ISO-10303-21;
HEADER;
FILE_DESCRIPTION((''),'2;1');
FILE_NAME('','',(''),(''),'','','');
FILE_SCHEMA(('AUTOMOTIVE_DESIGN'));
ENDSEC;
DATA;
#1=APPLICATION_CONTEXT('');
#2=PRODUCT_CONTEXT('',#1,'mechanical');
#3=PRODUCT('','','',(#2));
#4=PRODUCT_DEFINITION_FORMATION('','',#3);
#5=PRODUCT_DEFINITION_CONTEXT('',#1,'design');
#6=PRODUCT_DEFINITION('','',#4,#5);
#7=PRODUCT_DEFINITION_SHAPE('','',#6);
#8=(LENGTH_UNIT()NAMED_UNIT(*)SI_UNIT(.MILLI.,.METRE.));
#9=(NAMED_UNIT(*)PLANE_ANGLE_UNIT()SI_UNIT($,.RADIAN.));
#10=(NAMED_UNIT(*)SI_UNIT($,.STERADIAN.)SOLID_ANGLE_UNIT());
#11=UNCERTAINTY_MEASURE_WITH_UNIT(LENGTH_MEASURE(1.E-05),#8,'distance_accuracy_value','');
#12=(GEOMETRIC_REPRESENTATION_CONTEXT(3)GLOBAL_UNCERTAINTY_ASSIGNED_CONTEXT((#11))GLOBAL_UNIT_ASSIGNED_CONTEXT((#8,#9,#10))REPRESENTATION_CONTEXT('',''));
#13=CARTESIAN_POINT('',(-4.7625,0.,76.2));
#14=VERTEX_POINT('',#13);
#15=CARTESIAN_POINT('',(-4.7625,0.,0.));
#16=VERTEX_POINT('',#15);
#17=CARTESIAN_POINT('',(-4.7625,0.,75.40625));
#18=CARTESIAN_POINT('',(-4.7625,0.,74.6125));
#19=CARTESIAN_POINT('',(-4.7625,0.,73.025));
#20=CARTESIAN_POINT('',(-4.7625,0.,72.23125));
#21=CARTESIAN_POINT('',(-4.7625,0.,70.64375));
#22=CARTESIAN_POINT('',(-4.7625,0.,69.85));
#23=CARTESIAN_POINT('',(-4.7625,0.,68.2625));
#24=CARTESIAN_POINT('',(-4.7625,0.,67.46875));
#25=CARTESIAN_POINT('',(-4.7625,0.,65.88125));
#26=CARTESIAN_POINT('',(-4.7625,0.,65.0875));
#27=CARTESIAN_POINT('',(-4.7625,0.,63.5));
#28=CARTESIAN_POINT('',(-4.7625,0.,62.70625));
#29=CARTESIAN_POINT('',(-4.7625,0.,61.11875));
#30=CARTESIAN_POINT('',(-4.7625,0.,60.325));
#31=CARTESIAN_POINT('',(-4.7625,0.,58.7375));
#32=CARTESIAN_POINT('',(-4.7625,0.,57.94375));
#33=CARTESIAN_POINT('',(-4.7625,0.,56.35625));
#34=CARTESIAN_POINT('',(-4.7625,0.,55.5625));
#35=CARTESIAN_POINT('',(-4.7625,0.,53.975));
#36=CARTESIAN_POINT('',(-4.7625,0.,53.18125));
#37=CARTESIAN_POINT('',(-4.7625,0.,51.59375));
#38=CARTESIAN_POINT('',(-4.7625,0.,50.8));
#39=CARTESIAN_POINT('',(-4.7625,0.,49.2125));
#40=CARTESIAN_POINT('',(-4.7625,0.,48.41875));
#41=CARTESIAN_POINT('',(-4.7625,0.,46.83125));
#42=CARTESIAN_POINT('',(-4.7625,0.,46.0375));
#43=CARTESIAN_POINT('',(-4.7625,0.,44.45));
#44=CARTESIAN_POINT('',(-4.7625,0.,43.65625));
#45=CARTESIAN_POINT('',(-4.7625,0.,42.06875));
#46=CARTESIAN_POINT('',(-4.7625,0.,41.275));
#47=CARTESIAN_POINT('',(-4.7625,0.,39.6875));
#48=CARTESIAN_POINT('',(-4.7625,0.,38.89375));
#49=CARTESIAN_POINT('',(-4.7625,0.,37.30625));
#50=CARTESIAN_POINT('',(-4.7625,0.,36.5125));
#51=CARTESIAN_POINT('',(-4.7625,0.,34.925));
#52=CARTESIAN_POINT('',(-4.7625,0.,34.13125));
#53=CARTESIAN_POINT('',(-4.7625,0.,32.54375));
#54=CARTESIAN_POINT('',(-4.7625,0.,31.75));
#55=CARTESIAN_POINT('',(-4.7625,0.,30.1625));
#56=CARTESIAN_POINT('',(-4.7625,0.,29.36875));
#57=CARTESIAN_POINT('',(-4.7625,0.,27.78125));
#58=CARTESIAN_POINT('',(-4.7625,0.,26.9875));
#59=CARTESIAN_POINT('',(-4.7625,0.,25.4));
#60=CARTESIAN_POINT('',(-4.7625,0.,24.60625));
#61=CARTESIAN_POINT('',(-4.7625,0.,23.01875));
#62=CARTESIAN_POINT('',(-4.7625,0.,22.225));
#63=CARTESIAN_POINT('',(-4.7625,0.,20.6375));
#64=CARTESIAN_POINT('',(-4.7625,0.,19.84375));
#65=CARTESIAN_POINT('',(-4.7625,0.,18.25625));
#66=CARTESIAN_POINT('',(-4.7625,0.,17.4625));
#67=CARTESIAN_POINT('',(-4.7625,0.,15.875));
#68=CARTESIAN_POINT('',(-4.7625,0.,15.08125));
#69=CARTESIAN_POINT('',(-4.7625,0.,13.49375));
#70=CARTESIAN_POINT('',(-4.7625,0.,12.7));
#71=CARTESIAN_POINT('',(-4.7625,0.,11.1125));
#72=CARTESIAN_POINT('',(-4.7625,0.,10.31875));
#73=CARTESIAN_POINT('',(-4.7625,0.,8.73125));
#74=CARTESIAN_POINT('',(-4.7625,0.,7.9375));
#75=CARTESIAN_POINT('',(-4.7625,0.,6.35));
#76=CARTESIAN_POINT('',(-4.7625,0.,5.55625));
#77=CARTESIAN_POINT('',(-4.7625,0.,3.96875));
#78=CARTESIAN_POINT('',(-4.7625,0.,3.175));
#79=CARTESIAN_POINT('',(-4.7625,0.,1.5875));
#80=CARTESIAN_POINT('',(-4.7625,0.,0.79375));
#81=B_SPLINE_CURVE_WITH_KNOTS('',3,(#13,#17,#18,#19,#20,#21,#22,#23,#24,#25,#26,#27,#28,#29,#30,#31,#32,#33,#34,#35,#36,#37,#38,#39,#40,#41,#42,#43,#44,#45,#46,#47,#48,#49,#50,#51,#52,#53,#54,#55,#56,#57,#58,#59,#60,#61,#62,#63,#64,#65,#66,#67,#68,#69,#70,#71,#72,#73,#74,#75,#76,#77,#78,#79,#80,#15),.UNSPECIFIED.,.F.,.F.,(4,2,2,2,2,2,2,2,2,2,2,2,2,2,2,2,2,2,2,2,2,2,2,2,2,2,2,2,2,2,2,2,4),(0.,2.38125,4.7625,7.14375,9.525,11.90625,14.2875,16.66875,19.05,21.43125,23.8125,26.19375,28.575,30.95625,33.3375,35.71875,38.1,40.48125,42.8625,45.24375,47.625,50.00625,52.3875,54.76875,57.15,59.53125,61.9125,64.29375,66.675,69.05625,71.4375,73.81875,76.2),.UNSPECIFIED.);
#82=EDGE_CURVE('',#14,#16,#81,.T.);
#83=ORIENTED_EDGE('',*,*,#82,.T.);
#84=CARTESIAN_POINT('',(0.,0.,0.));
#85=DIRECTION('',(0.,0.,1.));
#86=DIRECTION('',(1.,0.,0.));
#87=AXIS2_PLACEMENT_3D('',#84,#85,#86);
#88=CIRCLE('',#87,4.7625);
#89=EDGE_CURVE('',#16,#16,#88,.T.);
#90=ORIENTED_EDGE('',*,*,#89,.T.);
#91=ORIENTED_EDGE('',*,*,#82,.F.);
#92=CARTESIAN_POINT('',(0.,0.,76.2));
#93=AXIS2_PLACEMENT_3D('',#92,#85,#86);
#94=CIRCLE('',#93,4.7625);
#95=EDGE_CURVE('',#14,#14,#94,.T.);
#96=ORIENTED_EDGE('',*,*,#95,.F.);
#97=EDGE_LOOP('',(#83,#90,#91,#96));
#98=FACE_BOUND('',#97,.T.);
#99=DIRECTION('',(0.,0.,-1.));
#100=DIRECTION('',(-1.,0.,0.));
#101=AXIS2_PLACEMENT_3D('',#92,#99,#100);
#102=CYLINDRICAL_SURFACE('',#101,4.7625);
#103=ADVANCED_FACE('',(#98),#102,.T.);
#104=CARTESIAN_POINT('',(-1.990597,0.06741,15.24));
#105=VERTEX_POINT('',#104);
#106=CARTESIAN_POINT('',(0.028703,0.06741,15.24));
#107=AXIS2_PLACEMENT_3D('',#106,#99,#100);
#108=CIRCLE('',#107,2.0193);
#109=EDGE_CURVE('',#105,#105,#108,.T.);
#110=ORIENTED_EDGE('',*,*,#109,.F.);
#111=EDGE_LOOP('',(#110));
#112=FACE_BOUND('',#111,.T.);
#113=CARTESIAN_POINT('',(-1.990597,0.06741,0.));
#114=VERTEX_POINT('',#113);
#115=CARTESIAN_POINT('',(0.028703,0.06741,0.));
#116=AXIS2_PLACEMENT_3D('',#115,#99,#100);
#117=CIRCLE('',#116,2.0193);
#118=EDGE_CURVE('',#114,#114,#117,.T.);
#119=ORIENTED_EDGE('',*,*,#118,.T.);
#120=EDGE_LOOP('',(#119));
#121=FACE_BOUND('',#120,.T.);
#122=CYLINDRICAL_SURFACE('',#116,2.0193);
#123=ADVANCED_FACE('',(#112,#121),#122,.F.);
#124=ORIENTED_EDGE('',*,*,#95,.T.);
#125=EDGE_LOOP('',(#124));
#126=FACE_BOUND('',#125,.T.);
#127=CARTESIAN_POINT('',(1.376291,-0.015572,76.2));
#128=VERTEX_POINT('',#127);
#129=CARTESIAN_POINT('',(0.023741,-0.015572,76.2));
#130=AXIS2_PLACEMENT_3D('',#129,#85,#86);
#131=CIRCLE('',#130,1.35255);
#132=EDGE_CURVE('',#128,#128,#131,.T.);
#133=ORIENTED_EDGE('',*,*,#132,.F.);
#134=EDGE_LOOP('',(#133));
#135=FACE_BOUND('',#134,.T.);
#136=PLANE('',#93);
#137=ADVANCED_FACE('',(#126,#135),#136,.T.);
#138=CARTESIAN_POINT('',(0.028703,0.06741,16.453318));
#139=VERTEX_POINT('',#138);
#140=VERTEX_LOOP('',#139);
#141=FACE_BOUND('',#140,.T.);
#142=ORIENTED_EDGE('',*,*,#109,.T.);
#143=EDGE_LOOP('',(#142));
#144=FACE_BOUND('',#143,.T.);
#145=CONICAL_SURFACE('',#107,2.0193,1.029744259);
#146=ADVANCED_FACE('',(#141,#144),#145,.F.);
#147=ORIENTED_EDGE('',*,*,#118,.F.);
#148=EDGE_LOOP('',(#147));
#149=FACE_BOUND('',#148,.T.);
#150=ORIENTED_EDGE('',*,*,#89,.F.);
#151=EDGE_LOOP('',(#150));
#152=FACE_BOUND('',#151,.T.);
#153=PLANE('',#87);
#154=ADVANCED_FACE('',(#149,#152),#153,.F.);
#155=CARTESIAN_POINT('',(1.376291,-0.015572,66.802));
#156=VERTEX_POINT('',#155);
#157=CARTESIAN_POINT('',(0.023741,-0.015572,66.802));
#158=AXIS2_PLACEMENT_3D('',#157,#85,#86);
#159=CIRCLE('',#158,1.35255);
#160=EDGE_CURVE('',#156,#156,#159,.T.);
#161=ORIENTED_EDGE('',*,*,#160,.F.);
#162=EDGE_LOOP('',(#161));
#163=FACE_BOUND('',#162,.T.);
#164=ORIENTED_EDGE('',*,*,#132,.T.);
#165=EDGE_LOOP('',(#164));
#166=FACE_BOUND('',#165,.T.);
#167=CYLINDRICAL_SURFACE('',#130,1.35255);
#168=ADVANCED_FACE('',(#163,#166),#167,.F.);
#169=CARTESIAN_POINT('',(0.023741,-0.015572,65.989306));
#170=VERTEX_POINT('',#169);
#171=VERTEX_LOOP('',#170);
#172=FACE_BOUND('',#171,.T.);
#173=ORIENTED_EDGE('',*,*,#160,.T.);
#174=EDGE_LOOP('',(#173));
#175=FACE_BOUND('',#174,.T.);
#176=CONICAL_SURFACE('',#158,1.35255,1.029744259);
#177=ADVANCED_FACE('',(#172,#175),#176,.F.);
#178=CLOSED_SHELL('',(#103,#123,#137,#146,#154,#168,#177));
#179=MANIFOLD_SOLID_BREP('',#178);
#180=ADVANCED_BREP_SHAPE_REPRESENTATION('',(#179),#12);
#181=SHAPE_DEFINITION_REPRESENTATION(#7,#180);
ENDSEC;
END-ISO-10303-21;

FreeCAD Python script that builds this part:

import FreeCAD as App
import Part
import Sketcher
from FreeCAD import Vector
Q = App.Units.Quantity

doc = App.newDocument("Part")
body = doc.addObject("PartDesign::Body", "Body")

# Sketch on XY plane
sketch1 = body.newObject("Sketcher::SketchObject", "Sketch")
sketch1.AttachmentSupport = (doc.getObject("XY_Plane"), [""])
sketch1.MapMode = "FlatFace"
sketch1.addGeometry(Part.Circle(Vector(0, 0, 0), Vector(0, 0, 1), 4.8), False)
sketch1.addConstraint(Sketcher.Constraint("Coincident", 0, 3, -1, 1))
sketch1.addConstraint(Sketcher.Constraint("Diameter", 0, Q("0.375 in")))
pad1 = body.newObject("PartDesign::Pad", "Pad")
pad1.Profile = sketch1
pad1.Length = Q("3 in")

# Sketch on XY plane
sketch2 = body.newObject("Sketcher::SketchObject", "Sketch001")
sketch2.AttachmentSupport = (doc.getObject("XY_Plane"), [""])
sketch2.MapMode = "FlatFace"
sketch2.addGeometry(Part.Circle(Vector(0, 0.1, 0), Vector(0, 0, 1), 2), False)
sketch2.addConstraint(Sketcher.Constraint("Diameter", 0, Q("0.159 in")))
sketch2.addConstraint(Sketcher.Constraint("DistanceY", -1, 1, 0, 3, 0.06741))
sketch2.addConstraint(Sketcher.Constraint("DistanceX", -1, 1, 0, 3, 0.028703))
doc.recompute()
hole = body.newObject("PartDesign::Hole", "Hole")
hole.Profile = sketch2
hole.ThreadType = "None"
hole.Diameter = Q("0.159 in")
hole.DepthType = "Dimension"
hole.Depth = Q("0.6 in")
hole.DrillPoint = "Angled"
hole.DrillPointAngle = 118
hole.Reversed = True

# Sketch on XY plane
sketch3 = body.newObject("Sketcher::SketchObject", "Sketch002")
sketch3.AttachmentSupport = (doc.getObject("XY_Plane"), [""])
sketch3.MapMode = "FlatFace"
sketch3.AttachmentOffset = App.Placement(Vector(0, 0, 3 * 25.4), App.Rotation())
sketch3.addGeometry(Part.Circle(Vector(0, 0, 0), Vector(0, 0, 1), 1.4), False)
sketch3.addConstraint(Sketcher.Constraint("Diameter", 0, Q("0.1065 in")))
sketch3.addConstraint(Sketcher.Constraint("DistanceX", -1, 1, 0, 3, 0.023741))
sketch3.addConstraint(Sketcher.Constraint("DistanceY", 0, 3, -1, 1, 0.015572))
doc.recompute()
hole2 = body.newObject("PartDesign::Hole", "Hole001")
hole2.Profile = sketch3
hole2.ThreadType = "None"
hole2.Diameter = Q("0.1065 in")
hole2.DepthType = "Dimension"
hole2.Depth = Q("0.37 in")
hole2.DrillPoint = "Angled"
hole2.DrillPointAngle = 118

doc.recompute()
